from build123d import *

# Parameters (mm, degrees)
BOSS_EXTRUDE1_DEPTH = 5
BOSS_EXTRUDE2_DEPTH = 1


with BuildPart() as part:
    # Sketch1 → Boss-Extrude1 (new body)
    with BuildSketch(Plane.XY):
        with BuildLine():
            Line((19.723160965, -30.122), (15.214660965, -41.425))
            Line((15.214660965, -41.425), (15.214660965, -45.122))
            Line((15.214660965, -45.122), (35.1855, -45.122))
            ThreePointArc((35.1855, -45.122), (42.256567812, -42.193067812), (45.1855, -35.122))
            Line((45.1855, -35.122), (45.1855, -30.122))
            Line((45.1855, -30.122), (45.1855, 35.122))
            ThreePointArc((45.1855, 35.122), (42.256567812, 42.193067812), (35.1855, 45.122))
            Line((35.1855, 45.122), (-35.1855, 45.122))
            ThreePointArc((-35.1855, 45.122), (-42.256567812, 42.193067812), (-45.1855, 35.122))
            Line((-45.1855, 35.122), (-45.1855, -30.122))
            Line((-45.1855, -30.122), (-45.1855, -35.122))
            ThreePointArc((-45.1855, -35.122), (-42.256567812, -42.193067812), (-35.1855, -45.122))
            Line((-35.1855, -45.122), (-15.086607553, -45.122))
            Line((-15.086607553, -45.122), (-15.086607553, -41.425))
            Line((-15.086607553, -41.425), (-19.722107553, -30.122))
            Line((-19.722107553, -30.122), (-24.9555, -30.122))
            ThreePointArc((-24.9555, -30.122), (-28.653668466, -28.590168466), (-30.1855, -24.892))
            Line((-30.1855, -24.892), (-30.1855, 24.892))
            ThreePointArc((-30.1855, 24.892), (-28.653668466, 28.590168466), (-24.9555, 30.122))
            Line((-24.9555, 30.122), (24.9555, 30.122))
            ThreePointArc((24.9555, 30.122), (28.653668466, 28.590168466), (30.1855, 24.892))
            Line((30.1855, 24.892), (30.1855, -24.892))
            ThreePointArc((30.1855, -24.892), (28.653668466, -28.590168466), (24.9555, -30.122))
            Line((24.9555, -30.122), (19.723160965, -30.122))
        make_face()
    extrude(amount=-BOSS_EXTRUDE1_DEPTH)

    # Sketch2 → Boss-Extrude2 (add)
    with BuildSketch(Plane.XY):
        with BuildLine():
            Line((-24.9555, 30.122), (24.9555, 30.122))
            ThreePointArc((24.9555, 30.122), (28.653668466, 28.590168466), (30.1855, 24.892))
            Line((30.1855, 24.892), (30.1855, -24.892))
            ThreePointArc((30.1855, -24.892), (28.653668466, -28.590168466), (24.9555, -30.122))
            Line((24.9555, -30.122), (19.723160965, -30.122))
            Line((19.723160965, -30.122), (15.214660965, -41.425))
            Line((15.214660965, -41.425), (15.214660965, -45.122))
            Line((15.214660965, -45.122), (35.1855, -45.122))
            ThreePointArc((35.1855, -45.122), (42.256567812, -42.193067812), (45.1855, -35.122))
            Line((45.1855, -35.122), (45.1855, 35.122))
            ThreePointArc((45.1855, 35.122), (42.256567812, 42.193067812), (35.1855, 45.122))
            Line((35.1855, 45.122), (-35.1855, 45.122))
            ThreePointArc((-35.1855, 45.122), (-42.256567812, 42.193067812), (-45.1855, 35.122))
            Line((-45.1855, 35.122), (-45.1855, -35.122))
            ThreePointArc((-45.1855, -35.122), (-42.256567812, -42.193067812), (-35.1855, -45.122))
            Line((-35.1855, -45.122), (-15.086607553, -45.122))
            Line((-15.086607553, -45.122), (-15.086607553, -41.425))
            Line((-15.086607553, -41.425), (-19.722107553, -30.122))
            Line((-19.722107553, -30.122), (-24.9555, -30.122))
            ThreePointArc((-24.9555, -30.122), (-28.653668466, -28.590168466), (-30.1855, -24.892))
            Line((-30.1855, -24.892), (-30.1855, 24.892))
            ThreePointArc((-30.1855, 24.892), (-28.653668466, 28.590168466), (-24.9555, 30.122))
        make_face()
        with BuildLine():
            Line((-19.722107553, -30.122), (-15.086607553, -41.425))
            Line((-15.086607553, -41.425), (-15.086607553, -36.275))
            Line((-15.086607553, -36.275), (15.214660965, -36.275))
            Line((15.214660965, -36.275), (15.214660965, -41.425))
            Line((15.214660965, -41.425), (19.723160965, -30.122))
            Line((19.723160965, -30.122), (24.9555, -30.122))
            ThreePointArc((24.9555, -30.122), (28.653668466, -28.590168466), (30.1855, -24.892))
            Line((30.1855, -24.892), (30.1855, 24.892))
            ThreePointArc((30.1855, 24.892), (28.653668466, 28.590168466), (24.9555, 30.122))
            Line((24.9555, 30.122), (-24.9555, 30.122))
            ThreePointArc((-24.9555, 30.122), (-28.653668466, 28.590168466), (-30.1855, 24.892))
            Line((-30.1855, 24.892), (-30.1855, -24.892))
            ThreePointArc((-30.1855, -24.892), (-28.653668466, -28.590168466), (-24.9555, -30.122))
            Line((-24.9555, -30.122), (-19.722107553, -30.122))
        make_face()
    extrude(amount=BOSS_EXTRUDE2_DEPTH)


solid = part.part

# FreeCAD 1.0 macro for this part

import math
import FreeCAD as App
import Part
import Sketcher
from FreeCAD import Vector

doc = App.newDocument("Part")
body = doc.addObject("PartDesign::Body", "Body")

# Sketch on XY plane
sketch1 = doc.addObject("Sketcher::SketchObject", "Sketch")
body.addObject(sketch1)
sketch1.AttachmentSupport = (doc.XY_Plane, [""])
sketch1.MapMode = "FlatFace"
sketch1.addGeometry([
    Part.LineSegment(Vector(19.7, -30.1, 0), Vector(15.2, -41.4, 0)),  # 0
    Part.LineSegment(Vector(15.2, -41.4, 0), Vector(15.2, -45.1, 0)),  # 1
    Part.LineSegment(Vector(15.2, -45.1, 0), Vector(35.2, -45.1, 0)),  # 2
    Part.ArcOfCircle(Part.Circle(Vector(35.2, -35.1, 0), Vector(0, 0, 1), 10), math.radians(-90), math.radians(0)),  # 3
    Part.LineSegment(Vector(45.2, -35.1, 0), Vector(45.2, 35.1, 0)),  # 4
    Part.ArcOfCircle(Part.Circle(Vector(35.2, 35.1, 0), Vector(0, 0, 1), 10), math.radians(0), math.radians(90)),  # 5
    Part.LineSegment(Vector(35.2, 45.1, 0), Vector(-35.2, 45.1, 0)),  # 6
    Part.ArcOfCircle(Part.Circle(Vector(-35.2, 35.1, 0), Vector(0, 0, 1), 10), math.radians(90), math.radians(180)),  # 7
    Part.LineSegment(Vector(-45.2, 35.1, 0), Vector(-45.2, -35.1, 0)),  # 8
    Part.ArcOfCircle(Part.Circle(Vector(-35.2, -35.1, 0), Vector(0, 0, 1), 10), math.radians(180), math.radians(270)),  # 9
    Part.LineSegment(Vector(-35.2, -45.1, 0), Vector(-15.1, -45.1, 0)),  # 10
    Part.LineSegment(Vector(-15.1, -45.1, 0), Vector(-15.1, -41.4, 0)),  # 11
    Part.LineSegment(Vector(-15.1, -41.4, 0), Vector(-19.7, -30.1, 0)),  # 12
    Part.LineSegment(Vector(-19.7, -30.1, 0), Vector(-25, -30.1, 0)),  # 13
    Part.ArcOfCircle(Part.Circle(Vector(-25, -24.9, 0), Vector(0, 0, 1), 5.2), math.radians(180), math.radians(270)),  # 14
    Part.LineSegment(Vector(-30.2, -24.9, 0), Vector(-30.2, 24.9, 0)),  # 15
    Part.ArcOfCircle(Part.Circle(Vector(-25, 24.9, 0), Vector(0, 0, 1), 5.2), math.radians(90), math.radians(180)),  # 16
    Part.LineSegment(Vector(-25, 30.1, 0), Vector(25, 30.1, 0)),  # 17
    Part.ArcOfCircle(Part.Circle(Vector(25, 24.9, 0), Vector(0, 0, 1), 5.2), math.radians(0), math.radians(90)),  # 18
    Part.LineSegment(Vector(30.2, 24.9, 0), Vector(30.2, -24.9, 0)),  # 19
    Part.ArcOfCircle(Part.Circle(Vector(25, -24.9, 0), Vector(0, 0, 1), 5.2), math.radians(-90), math.radians(0)),  # 20
    Part.LineSegment(Vector(25, -30.1, 0), Vector(19.7, -30.1, 0)),  # 21
], False)
sketch1.addConstraint([
    Sketcher.Constraint("Coincident", 0, 2, 1, 1),
    Sketcher.Constraint("Coincident", 1, 2, 2, 1),
    Sketcher.Constraint("Tangent", 2, 2, 3, 1),
    Sketcher.Constraint("Tangent", 3, 2, 4, 1),
    Sketcher.Constraint("Tangent", 4, 2, 5, 1),
    Sketcher.Constraint("Tangent", 5, 2, 6, 1),
    Sketcher.Constraint("Tangent", 6, 2, 7, 1),
    Sketcher.Constraint("Tangent", 7, 2, 8, 1),
    Sketcher.Constraint("Tangent", 8, 2, 9, 1),
    Sketcher.Constraint("Tangent", 9, 2, 10, 1),
    Sketcher.Constraint("Coincident", 10, 2, 11, 1),
    Sketcher.Constraint("Coincident", 11, 2, 12, 1),
    Sketcher.Constraint("Coincident", 12, 2, 13, 1),
    Sketcher.Constraint("Tangent", 13, 2, 14, 2),
    Sketcher.Constraint("Tangent", 14, 1, 15, 1),
    Sketcher.Constraint("Tangent", 15, 2, 16, 2),
    Sketcher.Constraint("Tangent", 16, 1, 17, 1),
    Sketcher.Constraint("Tangent", 17, 2, 18, 2),
    Sketcher.Constraint("Tangent", 18, 1, 19, 1),
    Sketcher.Constraint("Tangent", 19, 2, 20, 2),
    Sketcher.Constraint("Tangent", 20, 1, 21, 1),
    Sketcher.Constraint("Coincident", 21, 2, 0, 1),
    Sketcher.Constraint("Vertical", 1),
    Sketcher.Constraint("Horizontal", 2),
    Sketcher.Constraint("Vertical", 4),
    Sketcher.Constraint("Horizontal", 6),
    Sketcher.Constraint("Vertical", 8),
    Sketcher.Constraint("Horizontal", 10),
    Sketcher.Constraint("Vertical", 11),
    Sketcher.Constraint("Horizontal", 13),
    Sketcher.Constraint("Vertical", 15),
    Sketcher.Constraint("Horizontal", 17),
    Sketcher.Constraint("Vertical", 19),
    Sketcher.Constraint("Horizontal", 21),
    Sketcher.Constraint("Equal", 3, 5),
    Sketcher.Constraint("Equal", 5, 7),
    Sketcher.Constraint("Equal", 7, 9),
    Sketcher.Constraint("Equal", 14, 16),
    Sketcher.Constraint("Equal", 16, 18),
    Sketcher.Constraint("Equal", 18, 20),
    Sketcher.Constraint("Symmetric", 3, 3, 7, 3, -1, 1),
    Sketcher.Constraint("Symmetric", 14, 3, 18, 3, -1, 1),
    Sketcher.Constraint("Horizontal", 3, 3, 9, 3),
    Sketcher.Constraint("Horizontal", 14, 3, 20, 3),
    Sketcher.Constraint("Horizontal", 0, 2, 11, 2),
    Sketcher.Constraint("Radius", 3, 10.0),
    Sketcher.Constraint("Radius", 14, 5.23),
    Sketcher.Constraint("DistanceY", 10, 2, 12, 2, 15.0),
    Sketcher.Constraint("DistanceX", 9, 3, 14, 1, 5.0),
    Sketcher.Constraint("DistanceX", 6, 2, 6, 1, 70.371),
    Sketcher.Constraint("DistanceY", 1, 2, 1, 1, 3.697),
    Sketcher.Constraint("DistanceY", 4, 1, 4, 2, 70.244),
    Sketcher.Constraint("DistanceX", 2, 1, 2, 2, 19.970839),
    Sketcher.Constraint("DistanceX", 21, 2, 21, 1, 5.232339),
    Sketcher.Constraint("DistanceX", 12, 2, 11, 2, 4.6355),
    Sketcher.Constraint("DistanceX", 10, 1, 10, 2, 20.098892),
])
pad1 = doc.addObject("PartDesign::Pad", "Pad")
body.addObject(pad1)
pad1.Profile = sketch1
pad1.Length = 5
pad1.Reversed = True

# Sketch on XY plane
sketch2 = doc.addObject("Sketcher::SketchObject", "Sketch001")
body.addObject(sketch2)
sketch2.AttachmentSupport = (doc.XY_Plane, [""])
sketch2.MapMode = "FlatFace"
sketch2.addGeometry([
    Part.LineSegment(Vector(15, -45, 0), Vector(35, -45, 0)),  # 0
    Part.ArcOfCircle(Part.Circle(Vector(35, -35, 0), Vector(0, 0, 1), 10), math.radians(-90), math.radians(0)),  # 1
    Part.LineSegment(Vector(45, -35, 0), Vector(45, 35, 0)),  # 2
    Part.ArcOfCircle(Part.Circle(Vector(35, 35, 0), Vector(0, 0, 1), 10), math.radians(0), math.radians(90)),  # 3
    Part.LineSegment(Vector(35, 45, 0), Vector(-35, 45, 0)),  # 4
    Part.ArcOfCircle(Part.Circle(Vector(-35, 35, 0), Vector(0, 0, 1), 10), math.radians(90), math.radians(180)),  # 5
    Part.LineSegment(Vector(-45, 35, 0), Vector(-45, -35, 0)),  # 6
    Part.ArcOfCircle(Part.Circle(Vector(-35, -35, 0), Vector(0, 0, 1), 10), math.radians(180), math.radians(270)),  # 7
    Part.LineSegment(Vector(-35, -45, 0), Vector(-15, -45, 0)),  # 8
    Part.LineSegment(Vector(-15, -45, 0), Vector(-15, -36, 0)),  # 9
    Part.LineSegment(Vector(-15, -36, 0), Vector(15, -36, 0)),  # 10
    Part.LineSegment(Vector(15, -36, 0), Vector(15, -45, 0)),  # 11
], False)
sketch2.addConstraint([
    Sketcher.Constraint("Tangent", 0, 2, 1, 1),
    Sketcher.Constraint("Tangent", 1, 2, 2, 1),
    Sketcher.Constraint("Tangent", 2, 2, 3, 1),
    Sketcher.Constraint("Tangent", 3, 2, 4, 1),
    Sketcher.Constraint("Tangent", 4, 2, 5, 1),
    Sketcher.Constraint("Tangent", 5, 2, 6, 1),
    Sketcher.Constraint("Tangent", 6, 2, 7, 1),
    Sketcher.Constraint("Tangent", 7, 2, 8, 1),
    Sketcher.Constraint("Coincident", 8, 2, 9, 1),
    Sketcher.Constraint("Coincident", 9, 2, 10, 1),
    Sketcher.Constraint("Coincident", 10, 2, 11, 1),
    Sketcher.Constraint("Coincident", 11, 2, 0, 1),
    Sketcher.Constraint("Horizontal", 0),
    Sketcher.Constraint("Vertical", 2),
    Sketcher.Constraint("Horizontal", 4),
    Sketcher.Constraint("Vertical", 6),
    Sketcher.Constraint("Horizontal", 8),
    Sketcher.Constraint("Vertical", 9),
    Sketcher.Constraint("Horizontal", 10),
    Sketcher.Constraint("Vertical", 11),
    Sketcher.Constraint("Equal", 1, 3),
    Sketcher.Constraint("Equal", 3, 5),
    Sketcher.Constraint("Equal", 5, 7),
    Sketcher.Constraint("Symmetric", 1, 3, 5, 3, -1, 1),
    Sketcher.Constraint("Horizontal", 1, 3, 7, 3),
    Sketcher.Constraint("Radius", 1, 10.0),
    Sketcher.Constraint("DistanceX", 4, 2, 4, 1, 70.371),
    Sketcher.Constraint("DistanceY", 2, 1, 2, 2, 70.244),
    Sketcher.Constraint("DistanceY", 9, 1, 9, 2, 8.847),
    Sketcher.Constraint("DistanceX", 0, 1, 0, 2, 19.970839),
    Sketcher.Constraint("DistanceX", 10, 1, 10, 2, 30.301269),
])
pad2 = doc.addObject("PartDesign::Pad", "Pad001")
body.addObject(pad2)
pad2.Profile = sketch2
pad2.Length = 1

doc.recompute()
